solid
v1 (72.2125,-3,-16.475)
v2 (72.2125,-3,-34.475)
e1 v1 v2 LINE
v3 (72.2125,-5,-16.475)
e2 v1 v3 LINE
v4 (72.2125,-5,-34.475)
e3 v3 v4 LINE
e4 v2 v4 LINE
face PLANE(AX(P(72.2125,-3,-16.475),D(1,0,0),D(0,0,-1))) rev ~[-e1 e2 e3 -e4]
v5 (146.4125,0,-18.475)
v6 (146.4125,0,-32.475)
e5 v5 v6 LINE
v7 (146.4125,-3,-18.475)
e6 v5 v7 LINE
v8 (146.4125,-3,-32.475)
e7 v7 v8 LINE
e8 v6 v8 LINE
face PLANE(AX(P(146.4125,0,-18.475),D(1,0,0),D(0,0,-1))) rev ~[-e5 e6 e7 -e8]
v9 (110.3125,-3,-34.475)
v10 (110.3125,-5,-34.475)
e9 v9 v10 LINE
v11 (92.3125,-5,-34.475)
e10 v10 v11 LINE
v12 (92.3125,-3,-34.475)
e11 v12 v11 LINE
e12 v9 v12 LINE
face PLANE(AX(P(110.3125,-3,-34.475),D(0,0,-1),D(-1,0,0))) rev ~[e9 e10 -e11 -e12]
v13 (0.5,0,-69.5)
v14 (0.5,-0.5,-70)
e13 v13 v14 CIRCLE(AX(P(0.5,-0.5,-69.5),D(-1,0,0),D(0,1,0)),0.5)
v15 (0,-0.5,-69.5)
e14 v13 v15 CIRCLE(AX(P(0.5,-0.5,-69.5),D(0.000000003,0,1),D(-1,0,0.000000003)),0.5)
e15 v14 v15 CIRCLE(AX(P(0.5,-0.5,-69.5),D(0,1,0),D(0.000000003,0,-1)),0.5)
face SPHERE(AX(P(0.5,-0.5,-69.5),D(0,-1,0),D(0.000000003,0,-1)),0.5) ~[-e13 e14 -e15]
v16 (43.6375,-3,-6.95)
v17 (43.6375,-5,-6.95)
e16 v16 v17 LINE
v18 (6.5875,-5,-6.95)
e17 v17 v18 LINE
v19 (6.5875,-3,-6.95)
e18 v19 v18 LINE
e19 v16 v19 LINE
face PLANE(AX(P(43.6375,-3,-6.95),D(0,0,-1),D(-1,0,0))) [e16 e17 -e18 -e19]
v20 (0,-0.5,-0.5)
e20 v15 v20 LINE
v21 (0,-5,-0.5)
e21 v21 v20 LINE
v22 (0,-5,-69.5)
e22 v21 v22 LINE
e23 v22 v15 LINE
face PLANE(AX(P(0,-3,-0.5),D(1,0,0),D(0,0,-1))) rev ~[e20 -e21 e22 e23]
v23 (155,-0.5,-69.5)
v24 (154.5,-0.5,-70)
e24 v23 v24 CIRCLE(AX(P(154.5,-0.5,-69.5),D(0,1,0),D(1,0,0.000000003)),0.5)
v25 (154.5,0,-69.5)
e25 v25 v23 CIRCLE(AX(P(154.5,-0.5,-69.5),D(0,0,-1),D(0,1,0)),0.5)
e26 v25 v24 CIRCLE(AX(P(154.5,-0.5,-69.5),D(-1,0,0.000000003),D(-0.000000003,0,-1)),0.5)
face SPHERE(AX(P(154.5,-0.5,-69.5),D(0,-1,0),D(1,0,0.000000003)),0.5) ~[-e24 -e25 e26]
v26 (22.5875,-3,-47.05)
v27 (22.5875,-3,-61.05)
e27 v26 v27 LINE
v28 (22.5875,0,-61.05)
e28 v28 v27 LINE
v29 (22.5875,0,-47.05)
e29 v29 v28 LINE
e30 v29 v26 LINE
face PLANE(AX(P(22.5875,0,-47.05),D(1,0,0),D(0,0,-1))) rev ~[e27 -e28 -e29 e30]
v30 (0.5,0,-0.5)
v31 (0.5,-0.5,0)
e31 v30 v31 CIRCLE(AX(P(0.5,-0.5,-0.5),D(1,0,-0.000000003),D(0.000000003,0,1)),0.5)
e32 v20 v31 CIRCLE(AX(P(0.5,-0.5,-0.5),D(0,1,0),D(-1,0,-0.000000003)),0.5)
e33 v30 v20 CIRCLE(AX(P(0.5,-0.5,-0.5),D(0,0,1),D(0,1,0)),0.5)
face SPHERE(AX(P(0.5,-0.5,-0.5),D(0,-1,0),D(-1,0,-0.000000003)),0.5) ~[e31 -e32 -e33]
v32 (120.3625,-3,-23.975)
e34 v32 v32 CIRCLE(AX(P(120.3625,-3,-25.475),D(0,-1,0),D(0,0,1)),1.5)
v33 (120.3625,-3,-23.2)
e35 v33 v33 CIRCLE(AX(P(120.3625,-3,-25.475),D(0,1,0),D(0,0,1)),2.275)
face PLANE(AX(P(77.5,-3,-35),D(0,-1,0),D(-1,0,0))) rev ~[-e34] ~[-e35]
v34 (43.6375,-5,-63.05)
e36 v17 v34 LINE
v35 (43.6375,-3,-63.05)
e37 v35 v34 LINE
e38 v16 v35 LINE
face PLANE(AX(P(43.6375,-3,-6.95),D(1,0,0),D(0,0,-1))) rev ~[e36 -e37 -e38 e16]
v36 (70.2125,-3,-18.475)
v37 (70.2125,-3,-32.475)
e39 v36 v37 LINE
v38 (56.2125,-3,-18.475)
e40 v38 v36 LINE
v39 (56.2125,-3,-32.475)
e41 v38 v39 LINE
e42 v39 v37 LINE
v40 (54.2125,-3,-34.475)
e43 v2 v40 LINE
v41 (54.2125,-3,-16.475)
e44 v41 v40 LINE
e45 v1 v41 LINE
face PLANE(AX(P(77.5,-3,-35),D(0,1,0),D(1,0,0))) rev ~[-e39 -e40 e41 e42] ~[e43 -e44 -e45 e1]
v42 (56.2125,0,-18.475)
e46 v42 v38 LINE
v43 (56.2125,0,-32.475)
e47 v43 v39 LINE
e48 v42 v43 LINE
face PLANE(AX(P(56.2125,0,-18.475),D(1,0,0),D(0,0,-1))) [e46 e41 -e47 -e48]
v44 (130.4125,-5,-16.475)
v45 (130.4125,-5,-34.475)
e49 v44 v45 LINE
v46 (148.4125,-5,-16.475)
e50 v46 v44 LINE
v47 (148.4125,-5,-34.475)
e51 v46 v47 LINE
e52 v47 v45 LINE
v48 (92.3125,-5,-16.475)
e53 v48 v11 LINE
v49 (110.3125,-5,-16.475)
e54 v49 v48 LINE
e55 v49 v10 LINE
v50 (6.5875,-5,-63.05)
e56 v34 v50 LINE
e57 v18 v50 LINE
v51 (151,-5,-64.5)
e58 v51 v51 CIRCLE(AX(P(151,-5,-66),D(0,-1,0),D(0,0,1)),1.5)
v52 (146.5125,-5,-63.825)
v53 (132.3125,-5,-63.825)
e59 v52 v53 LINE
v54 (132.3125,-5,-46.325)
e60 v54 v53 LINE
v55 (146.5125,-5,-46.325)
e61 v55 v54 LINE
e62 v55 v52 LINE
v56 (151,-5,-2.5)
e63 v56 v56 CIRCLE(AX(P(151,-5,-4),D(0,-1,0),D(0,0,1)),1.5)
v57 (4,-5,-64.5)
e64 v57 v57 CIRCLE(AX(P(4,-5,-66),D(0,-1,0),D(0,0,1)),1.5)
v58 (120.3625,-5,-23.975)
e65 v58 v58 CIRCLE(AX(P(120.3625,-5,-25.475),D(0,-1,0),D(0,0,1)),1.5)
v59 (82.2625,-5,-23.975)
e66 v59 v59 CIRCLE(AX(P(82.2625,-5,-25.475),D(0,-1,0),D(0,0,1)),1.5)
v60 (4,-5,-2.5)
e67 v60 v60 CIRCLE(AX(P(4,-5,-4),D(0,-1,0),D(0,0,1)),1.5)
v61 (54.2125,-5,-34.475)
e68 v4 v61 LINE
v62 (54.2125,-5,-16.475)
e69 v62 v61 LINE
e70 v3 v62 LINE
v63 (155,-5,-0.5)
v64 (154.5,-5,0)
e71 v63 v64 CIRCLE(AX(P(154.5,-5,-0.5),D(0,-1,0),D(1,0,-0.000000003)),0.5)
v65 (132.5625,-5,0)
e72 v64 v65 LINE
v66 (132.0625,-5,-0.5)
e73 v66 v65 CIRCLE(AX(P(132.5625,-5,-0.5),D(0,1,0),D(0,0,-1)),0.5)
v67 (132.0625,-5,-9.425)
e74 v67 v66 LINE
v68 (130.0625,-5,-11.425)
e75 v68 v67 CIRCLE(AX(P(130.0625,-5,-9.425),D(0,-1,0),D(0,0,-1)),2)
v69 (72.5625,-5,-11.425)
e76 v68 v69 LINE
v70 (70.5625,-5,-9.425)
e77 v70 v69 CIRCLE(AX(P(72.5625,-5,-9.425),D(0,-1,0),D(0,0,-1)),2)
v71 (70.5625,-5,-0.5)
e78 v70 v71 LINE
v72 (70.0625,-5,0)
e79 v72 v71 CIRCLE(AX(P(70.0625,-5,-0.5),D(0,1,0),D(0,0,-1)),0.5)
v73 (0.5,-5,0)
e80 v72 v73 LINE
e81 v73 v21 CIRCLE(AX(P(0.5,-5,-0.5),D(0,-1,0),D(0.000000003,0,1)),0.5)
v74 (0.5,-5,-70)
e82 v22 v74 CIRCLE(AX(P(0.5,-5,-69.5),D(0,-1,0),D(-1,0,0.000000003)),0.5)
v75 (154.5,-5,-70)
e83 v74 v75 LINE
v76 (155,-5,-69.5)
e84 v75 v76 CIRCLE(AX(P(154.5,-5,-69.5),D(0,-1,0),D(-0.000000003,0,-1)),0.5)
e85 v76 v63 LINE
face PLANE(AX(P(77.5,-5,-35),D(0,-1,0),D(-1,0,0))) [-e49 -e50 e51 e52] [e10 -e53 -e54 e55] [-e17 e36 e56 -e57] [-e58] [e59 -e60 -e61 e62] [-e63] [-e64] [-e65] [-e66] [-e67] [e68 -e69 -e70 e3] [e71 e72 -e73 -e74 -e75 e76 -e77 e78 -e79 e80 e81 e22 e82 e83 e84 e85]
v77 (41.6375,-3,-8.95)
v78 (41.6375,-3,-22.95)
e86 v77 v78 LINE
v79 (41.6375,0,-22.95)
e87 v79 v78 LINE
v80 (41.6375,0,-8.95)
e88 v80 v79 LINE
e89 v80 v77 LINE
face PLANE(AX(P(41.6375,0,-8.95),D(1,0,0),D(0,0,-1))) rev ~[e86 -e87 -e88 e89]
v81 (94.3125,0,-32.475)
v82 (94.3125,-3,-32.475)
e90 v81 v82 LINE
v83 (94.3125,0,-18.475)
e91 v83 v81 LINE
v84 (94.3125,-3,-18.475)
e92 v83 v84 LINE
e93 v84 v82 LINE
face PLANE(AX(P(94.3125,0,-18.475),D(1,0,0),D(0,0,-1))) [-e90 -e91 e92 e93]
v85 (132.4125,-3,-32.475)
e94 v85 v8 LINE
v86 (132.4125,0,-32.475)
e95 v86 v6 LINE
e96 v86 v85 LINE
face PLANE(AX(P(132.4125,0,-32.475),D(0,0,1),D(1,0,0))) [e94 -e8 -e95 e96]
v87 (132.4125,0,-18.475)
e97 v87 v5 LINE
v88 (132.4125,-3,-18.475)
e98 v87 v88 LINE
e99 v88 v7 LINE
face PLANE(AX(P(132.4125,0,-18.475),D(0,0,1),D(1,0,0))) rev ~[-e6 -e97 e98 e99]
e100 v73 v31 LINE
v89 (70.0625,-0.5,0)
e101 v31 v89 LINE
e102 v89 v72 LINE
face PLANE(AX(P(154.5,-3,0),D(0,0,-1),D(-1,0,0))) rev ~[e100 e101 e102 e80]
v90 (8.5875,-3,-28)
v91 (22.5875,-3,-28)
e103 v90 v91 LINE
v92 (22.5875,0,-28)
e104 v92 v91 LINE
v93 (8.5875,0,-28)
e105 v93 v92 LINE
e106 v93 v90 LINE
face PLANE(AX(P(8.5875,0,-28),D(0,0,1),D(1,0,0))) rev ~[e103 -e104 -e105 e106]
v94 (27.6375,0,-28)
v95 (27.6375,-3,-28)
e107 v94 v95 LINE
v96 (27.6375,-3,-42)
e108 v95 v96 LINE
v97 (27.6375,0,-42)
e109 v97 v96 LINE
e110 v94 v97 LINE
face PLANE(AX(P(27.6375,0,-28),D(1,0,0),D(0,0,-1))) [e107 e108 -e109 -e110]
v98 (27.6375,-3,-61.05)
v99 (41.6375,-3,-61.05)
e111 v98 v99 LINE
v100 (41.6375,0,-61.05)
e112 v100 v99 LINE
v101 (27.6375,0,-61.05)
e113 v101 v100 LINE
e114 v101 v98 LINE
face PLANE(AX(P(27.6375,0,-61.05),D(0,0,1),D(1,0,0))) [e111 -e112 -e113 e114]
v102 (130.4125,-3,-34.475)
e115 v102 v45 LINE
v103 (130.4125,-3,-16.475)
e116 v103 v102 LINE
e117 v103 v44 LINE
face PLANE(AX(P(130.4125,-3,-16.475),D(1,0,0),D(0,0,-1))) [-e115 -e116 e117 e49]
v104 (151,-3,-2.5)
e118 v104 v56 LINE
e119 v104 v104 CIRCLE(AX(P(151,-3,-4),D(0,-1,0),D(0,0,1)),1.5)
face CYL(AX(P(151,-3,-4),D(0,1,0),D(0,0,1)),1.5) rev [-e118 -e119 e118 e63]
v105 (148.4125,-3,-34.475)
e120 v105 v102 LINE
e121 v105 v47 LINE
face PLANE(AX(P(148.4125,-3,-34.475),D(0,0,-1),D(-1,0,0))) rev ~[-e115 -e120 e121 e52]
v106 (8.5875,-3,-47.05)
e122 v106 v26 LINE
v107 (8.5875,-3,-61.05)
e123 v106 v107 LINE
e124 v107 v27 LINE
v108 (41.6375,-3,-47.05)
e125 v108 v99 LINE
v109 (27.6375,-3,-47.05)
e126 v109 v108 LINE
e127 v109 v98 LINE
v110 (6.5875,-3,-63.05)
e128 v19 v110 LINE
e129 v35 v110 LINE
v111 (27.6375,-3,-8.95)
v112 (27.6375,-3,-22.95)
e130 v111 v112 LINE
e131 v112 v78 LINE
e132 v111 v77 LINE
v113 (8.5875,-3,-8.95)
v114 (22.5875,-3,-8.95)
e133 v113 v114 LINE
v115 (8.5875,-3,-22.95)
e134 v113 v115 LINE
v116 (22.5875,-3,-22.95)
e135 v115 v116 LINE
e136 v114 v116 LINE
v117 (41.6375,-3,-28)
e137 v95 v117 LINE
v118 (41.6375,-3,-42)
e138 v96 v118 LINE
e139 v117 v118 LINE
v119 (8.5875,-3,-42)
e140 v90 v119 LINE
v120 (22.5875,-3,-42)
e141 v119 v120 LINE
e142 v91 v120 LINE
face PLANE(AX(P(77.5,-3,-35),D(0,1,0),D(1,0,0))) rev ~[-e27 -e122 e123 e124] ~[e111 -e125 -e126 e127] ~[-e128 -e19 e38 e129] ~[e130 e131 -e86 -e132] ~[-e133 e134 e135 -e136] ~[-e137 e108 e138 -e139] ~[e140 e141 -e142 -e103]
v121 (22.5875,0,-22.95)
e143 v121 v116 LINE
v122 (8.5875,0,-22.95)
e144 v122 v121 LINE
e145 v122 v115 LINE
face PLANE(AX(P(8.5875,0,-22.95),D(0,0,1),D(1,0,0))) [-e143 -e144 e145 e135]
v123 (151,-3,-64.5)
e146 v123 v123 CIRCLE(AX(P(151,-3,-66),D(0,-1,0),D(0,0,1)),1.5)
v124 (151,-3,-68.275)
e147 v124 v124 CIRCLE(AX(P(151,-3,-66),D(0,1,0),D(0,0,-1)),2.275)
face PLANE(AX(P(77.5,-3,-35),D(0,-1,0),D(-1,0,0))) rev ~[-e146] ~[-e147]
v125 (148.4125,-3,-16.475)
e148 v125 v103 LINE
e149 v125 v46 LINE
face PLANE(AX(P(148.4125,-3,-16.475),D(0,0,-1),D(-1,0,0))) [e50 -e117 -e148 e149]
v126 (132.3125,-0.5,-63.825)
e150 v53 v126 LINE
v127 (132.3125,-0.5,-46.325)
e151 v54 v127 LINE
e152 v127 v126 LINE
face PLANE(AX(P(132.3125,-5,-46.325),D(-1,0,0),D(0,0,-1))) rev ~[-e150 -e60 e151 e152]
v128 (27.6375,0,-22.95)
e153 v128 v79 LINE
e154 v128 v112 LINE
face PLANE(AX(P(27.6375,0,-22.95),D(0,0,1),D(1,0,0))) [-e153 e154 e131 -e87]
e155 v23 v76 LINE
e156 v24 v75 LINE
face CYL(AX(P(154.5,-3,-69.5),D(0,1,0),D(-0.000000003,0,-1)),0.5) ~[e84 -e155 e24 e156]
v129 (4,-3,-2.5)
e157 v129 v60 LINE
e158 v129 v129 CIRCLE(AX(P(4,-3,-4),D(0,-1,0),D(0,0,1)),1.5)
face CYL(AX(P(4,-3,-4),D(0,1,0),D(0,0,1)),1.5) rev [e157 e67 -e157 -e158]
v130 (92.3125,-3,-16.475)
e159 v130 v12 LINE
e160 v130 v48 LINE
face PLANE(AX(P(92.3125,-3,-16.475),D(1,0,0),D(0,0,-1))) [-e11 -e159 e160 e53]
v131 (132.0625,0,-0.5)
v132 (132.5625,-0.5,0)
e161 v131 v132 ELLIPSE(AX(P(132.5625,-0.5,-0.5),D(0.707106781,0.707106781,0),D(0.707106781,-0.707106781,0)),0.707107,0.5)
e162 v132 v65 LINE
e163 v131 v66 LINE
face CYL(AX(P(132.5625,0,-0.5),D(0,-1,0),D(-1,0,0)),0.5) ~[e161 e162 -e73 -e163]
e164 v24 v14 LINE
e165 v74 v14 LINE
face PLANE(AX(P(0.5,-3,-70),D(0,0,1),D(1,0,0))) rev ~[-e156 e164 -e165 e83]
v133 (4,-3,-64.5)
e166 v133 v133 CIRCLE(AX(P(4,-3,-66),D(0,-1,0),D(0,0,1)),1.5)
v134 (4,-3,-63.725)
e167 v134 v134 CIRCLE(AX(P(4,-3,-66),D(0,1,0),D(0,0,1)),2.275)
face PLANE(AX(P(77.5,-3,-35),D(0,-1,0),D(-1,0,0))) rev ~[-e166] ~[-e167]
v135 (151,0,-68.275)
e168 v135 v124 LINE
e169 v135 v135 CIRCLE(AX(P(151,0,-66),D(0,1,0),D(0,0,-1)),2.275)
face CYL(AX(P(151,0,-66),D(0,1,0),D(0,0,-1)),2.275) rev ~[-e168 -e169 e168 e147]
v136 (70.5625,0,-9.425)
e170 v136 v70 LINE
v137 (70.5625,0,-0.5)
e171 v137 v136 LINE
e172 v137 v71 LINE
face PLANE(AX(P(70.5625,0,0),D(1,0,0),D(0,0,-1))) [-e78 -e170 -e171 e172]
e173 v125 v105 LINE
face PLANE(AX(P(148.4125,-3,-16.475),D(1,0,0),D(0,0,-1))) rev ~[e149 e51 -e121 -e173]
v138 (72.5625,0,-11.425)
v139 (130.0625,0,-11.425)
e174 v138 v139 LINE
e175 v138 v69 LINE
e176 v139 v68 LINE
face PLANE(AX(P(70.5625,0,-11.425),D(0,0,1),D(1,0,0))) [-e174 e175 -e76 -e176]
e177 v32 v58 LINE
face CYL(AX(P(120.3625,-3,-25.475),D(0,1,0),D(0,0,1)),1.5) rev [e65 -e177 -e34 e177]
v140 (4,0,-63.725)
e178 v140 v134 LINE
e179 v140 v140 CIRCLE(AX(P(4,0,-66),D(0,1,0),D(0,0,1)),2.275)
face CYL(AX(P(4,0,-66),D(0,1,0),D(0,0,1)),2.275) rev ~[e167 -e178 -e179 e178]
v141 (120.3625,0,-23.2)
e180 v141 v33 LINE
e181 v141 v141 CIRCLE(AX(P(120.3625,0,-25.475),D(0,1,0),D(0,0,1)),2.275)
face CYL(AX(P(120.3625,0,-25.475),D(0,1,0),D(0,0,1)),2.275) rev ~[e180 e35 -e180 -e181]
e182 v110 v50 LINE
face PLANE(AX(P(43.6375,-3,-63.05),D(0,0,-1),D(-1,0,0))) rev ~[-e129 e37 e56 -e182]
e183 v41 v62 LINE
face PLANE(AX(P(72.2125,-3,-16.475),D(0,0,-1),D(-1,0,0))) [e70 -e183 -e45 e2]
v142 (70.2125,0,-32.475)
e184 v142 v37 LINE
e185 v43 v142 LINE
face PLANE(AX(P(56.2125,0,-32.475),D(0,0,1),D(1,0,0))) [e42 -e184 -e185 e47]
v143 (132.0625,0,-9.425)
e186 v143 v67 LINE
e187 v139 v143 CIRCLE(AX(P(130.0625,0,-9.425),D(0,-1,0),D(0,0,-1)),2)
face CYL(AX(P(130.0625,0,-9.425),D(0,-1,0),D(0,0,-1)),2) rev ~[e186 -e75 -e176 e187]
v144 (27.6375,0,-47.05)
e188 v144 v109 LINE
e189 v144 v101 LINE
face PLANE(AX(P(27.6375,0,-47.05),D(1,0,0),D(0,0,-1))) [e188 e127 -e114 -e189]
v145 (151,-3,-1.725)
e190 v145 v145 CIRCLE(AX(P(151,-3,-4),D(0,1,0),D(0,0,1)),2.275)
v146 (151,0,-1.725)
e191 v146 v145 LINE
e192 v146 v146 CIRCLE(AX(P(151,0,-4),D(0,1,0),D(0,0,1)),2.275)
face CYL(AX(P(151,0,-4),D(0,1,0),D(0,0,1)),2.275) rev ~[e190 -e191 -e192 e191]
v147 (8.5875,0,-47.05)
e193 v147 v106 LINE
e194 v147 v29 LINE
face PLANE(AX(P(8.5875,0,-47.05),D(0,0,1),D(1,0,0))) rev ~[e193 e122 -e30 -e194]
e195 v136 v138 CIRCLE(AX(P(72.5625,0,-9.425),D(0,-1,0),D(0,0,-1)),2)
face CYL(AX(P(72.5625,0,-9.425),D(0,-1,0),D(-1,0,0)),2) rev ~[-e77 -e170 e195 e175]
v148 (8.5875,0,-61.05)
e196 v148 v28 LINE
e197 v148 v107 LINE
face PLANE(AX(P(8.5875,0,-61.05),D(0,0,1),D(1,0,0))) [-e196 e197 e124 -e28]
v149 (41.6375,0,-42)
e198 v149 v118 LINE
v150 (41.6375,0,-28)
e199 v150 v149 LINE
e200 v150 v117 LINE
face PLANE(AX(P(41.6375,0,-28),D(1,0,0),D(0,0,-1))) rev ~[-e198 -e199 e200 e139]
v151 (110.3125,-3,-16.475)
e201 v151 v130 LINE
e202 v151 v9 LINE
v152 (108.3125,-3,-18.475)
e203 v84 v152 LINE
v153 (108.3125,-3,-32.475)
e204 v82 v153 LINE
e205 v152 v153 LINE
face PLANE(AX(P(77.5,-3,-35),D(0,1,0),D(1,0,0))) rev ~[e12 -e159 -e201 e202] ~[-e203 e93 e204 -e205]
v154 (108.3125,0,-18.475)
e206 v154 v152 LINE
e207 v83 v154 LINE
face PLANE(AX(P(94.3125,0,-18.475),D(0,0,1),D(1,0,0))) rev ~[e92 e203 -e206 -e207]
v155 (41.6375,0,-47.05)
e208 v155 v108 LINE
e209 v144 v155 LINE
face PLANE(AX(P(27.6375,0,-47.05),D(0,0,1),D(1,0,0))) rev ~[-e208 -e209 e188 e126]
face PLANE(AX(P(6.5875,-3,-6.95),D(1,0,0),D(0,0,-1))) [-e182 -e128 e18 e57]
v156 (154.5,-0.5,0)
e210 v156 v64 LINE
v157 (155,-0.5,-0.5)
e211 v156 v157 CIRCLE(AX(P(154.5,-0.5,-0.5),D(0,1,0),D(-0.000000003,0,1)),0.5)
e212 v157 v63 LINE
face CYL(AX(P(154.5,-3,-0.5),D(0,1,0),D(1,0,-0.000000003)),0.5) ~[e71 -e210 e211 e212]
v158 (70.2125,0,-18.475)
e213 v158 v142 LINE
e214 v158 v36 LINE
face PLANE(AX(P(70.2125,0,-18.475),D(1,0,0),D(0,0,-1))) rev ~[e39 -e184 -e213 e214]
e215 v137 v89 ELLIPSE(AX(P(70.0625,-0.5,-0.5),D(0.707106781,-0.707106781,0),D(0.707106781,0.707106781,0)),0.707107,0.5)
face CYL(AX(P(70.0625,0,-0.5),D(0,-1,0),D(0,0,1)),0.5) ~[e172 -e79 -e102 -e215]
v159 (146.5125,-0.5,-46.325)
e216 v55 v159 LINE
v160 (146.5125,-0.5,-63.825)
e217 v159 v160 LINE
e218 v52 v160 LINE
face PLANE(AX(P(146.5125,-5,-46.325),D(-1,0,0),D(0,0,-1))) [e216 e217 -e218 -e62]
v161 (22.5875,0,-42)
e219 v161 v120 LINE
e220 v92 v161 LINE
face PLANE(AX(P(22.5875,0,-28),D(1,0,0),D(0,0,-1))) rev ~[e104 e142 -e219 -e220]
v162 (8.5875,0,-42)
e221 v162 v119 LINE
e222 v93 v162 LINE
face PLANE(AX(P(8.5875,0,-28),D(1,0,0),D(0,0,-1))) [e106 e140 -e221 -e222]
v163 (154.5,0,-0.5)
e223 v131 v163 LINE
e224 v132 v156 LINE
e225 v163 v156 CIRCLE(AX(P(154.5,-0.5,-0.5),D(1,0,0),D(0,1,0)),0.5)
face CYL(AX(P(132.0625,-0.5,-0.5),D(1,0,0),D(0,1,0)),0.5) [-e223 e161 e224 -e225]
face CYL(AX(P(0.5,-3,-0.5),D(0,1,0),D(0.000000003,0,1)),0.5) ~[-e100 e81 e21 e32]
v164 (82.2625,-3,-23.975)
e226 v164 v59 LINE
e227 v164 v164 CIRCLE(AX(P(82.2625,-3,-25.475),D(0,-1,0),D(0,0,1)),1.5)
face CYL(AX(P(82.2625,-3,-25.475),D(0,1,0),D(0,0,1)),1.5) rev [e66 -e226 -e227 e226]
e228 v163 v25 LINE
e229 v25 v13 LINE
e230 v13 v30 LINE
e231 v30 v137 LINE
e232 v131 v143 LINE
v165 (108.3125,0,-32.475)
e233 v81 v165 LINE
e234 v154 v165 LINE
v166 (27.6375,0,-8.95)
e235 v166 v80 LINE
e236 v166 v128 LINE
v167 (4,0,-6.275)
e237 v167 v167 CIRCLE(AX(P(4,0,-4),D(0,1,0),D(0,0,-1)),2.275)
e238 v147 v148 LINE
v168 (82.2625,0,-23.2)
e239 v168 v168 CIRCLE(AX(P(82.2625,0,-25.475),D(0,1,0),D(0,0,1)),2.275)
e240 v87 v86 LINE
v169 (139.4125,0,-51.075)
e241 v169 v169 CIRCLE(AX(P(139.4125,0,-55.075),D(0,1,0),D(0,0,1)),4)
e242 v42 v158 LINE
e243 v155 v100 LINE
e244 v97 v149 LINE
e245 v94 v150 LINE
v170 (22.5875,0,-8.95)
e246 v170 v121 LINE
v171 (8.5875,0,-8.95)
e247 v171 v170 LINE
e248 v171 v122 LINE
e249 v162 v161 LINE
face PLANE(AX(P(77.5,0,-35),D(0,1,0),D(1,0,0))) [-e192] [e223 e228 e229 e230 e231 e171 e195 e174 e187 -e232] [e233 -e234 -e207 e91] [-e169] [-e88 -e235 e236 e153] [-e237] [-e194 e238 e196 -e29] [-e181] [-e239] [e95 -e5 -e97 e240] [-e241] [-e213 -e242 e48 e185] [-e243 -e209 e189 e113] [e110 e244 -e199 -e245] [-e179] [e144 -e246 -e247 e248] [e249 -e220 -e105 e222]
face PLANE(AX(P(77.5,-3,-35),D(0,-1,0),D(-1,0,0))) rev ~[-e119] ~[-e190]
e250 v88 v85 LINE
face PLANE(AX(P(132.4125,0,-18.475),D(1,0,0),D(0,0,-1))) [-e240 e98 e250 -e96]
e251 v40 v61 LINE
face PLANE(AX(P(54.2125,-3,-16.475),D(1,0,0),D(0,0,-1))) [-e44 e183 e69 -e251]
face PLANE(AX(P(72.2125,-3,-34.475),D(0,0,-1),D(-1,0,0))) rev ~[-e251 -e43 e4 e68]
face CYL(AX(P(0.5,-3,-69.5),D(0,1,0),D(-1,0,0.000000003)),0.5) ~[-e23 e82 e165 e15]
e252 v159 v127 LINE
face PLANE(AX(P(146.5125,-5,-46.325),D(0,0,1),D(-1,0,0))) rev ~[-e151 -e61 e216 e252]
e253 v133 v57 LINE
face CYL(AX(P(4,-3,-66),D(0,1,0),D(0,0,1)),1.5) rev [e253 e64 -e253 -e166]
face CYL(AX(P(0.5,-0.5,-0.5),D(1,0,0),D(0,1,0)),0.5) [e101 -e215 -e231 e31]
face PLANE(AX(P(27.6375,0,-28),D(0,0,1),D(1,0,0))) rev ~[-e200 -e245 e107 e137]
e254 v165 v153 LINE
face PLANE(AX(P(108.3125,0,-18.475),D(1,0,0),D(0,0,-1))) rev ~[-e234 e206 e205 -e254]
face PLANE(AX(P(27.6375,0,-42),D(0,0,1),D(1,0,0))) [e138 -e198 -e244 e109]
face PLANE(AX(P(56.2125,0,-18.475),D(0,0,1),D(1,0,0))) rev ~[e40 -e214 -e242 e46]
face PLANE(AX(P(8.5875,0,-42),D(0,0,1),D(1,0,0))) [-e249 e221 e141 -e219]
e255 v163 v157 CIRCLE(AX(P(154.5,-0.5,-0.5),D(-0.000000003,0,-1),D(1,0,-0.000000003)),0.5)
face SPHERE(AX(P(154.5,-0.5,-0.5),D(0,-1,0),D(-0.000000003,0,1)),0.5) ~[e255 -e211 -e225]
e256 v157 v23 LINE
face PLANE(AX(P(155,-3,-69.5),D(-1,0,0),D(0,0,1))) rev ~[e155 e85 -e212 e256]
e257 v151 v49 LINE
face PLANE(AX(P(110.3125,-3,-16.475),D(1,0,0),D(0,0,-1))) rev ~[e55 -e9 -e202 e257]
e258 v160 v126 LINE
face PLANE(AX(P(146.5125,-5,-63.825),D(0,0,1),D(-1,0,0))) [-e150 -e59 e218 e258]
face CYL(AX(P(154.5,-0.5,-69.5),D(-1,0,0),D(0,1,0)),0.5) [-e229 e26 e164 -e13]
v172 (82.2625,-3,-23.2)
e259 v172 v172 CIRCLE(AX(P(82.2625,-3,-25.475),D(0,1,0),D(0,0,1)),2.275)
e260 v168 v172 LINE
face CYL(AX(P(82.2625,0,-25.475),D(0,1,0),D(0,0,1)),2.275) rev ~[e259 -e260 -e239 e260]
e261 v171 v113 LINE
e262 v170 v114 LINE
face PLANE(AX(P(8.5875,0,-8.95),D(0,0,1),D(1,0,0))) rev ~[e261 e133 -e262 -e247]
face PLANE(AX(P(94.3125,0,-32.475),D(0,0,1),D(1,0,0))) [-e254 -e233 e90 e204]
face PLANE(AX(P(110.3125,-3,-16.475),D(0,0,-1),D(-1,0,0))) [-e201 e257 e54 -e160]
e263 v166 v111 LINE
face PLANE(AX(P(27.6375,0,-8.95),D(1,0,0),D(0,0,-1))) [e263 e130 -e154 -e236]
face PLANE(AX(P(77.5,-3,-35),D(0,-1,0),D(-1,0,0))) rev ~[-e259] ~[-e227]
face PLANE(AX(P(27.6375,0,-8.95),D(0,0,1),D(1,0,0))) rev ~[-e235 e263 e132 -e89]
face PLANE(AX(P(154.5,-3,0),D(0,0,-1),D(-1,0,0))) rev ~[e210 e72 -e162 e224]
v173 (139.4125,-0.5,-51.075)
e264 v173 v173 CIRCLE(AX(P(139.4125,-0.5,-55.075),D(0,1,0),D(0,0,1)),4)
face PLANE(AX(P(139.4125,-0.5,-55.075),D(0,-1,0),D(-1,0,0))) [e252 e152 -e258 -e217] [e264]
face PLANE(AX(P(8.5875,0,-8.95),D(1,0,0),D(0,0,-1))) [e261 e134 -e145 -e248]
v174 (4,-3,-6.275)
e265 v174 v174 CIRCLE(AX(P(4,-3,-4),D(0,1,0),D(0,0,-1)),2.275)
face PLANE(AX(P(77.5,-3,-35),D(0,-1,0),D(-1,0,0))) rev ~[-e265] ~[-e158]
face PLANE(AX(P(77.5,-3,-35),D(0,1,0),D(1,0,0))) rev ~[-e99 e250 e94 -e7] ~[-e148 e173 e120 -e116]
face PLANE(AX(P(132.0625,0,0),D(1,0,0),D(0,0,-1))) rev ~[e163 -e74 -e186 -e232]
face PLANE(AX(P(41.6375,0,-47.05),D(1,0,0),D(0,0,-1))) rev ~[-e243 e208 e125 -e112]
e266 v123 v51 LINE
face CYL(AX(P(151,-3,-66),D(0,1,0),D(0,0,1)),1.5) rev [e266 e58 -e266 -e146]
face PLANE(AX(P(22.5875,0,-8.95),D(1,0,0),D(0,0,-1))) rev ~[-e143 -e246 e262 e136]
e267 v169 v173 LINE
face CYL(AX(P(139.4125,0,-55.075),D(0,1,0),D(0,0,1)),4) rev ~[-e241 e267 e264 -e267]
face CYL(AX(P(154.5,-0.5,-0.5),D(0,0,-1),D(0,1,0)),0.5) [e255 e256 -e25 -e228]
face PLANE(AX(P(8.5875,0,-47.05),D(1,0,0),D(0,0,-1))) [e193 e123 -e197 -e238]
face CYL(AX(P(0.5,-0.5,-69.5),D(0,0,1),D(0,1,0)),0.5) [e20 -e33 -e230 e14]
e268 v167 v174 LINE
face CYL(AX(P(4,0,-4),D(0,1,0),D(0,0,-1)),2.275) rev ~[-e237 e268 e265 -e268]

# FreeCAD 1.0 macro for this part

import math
import FreeCAD as App
import Part
import Sketcher
from FreeCAD import Vector


def edges_at(feature, points):
    """Names of the edges that pass closest to the given points."""
    edges = feature.Shape.Edges
    near = lambda p: min(range(len(edges)), key=lambda i: edges[i].distToShape(Part.Vertex(*p))[0])
    return sorted({f"Edge{near(p) + 1}" for p in points})


def add_polygon(sketch, points):
    """Adds a closed chain of lines whose ends are joined by coincident constraints."""
    first, n = sketch.GeometryCount, len(points)
    for a, b in zip(points, points[1:] + points[:1]):
        sketch.addGeometry(Part.LineSegment(App.Vector(*a, 0), App.Vector(*b, 0)), False)
    for i in range(n):
        sketch.addConstraint(Sketcher.Constraint("Coincident", first + i, 2, first + (i + 1) % n, 1))

doc = App.newDocument("Part")
params = doc.addObject("Spreadsheet::Sheet", "Params")
for row, (alias, value) in enumerate([
    ("sketch1_diameter", "8 mm"),
    ("sketch1_radius", "0.5 mm"),
    ("sketch1_diameter2", "4.55 mm"),
    ("sketch1_width", "154 mm"),
    ("sketch1_width2", "14 mm"),
    ("pad1_length", "3 mm"),
    ("sketch2_diameter", "3 mm"),
    ("sketch2_diameter2", "8 mm"),
    ("sketch2_radius", "0.5 mm"),
    ("sketch2_width", "154 mm"),
    ("sketch2_width2", "18 mm"),
    ("pad2_length", "2 mm"),
    ("sketch3_width", "14.2 mm"),
    ("sketch3_height", "17.5 mm"),
    ("pocket1_length", "4.5 mm"),
    ("sketch4_width", "61.5 mm"),
    ("fillet_radius", "0.5 mm"),
    ("fillet2_radius", "2 mm"),
], start=1):
    params.set(f"A{row}", alias)
    params.set(f"B{row}", "=" + value)
    params.setAlias(f"B{row}", alias)

body = doc.addObject("PartDesign::Body", "Body")

sketch1 = body.newObject("Sketcher::SketchObject", "Sketch")
sketch1.AttachmentSupport = (doc.getObject("XZ_Plane"), [""])
sketch1.MapMode = "FlatFace"
sketch1.addGeometry(Part.LineSegment(Vector(0.5, 0, 0), Vector(154.5, 0, 0)), False)
sketch1.addGeometry(Part.ArcOfCircle(Part.Circle(Vector(154.5, -0.5, 0), Vector(0, 0, 1), 0.5), math.radians(0), math.radians(90)), False)
sketch1.addGeometry(Part.LineSegment(Vector(155, -0.5, 0), Vector(155, -69.5, 0)), False)
sketch1.addGeometry(Part.ArcOfCircle(Part.Circle(Vector(154.5, -69.5, 0), Vector(0, 0, 1), 0.5), math.radians(-90), math.radians(0)), False)
sketch1.addGeometry(Part.LineSegment(Vector(154.5, -70, 0), Vector(0.5, -70, 0)), False)
sketch1.addGeometry(Part.ArcOfCircle(Part.Circle(Vector(0.5, -69.5, 0), Vector(0, 0, 1), 0.5), math.radians(180), math.radians(270)), False)
sketch1.addGeometry(Part.LineSegment(Vector(0, -69.5, 0), Vector(0, -0.5, 0)), False)
sketch1.addGeometry(Part.ArcOfCircle(Part.Circle(Vector(0.5, -0.5, 0), Vector(0, 0, 1), 0.5), math.radians(90), math.radians(180)), False)
sketch1.addGeometry(Part.Circle(Vector(4, -4, 0), Vector(0, 0, 1), 2.275), False)
add_polygon(sketch1, [(22.5875, -8.95), (8.5875, -8.95), (8.5875, -22.95), (22.5875, -22.95)])
add_polygon(sketch1, [(41.6375, -8.95), (27.6375, -8.95), (27.6375, -22.95), (41.6375, -22.95)])
add_polygon(sketch1, [(22.5875, -28), (8.5875, -28), (8.5875, -42), (22.5875, -42)])
add_polygon(sketch1, [(41.6375, -28), (27.6375, -28), (27.6375, -42), (41.6375, -42)])
add_polygon(sketch1, [(70.2125, -18.475), (56.2125, -18.475), (56.2125, -32.475), (70.2125, -32.475)])
sketch1.addGeometry(Part.Circle(Vector(151, -4, 0), Vector(0, 0, 1), 2.275), False)
sketch1.addGeometry(Part.Circle(Vector(82.2625, -25.475, 0), Vector(0, 0, 1), 2.275), False)
add_polygon(sketch1, [(108.3125, -18.475), (94.3125, -18.475), (94.3125, -32.475), (108.3125, -32.475)])
sketch1.addGeometry(Part.Circle(Vector(120.3625, -25.475, 0), Vector(0, 0, 1), 2.275), False)
add_polygon(sketch1, [(146.4125, -18.475), (132.4125, -18.475), (132.4125, -32.475), (146.4125, -32.475)])
add_polygon(sketch1, [(22.5875, -47.05), (8.5875, -47.05), (8.5875, -61.05), (22.5875, -61.05)])
add_polygon(sketch1, [(41.6375, -47.05), (27.6375, -47.05), (27.6375, -61.05), (41.6375, -61.05)])
sketch1.addGeometry(Part.Circle(Vector(4, -66, 0), Vector(0, 0, 1), 2.275), False)
sketch1.addGeometry(Part.Circle(Vector(139.4125, -55.075, 0), Vector(0, 0, 1), 4), False)
sketch1.addGeometry(Part.Circle(Vector(151, -66, 0), Vector(0, 0, 1), 2.275), False)
sketch1.addConstraint(Sketcher.Constraint("Tangent", 0, 2, 1, 2))
sketch1.addConstraint(Sketcher.Constraint("Tangent", 1, 1, 2, 1))
sketch1.addConstraint(Sketcher.Constraint("Tangent", 2, 2, 3, 2))
sketch1.addConstraint(Sketcher.Constraint("Tangent", 3, 1, 4, 1))
sketch1.addConstraint(Sketcher.Constraint("Tangent", 4, 2, 5, 2))
sketch1.addConstraint(Sketcher.Constraint("Tangent", 5, 1, 6, 1))
sketch1.addConstraint(Sketcher.Constraint("Tangent", 6, 2, 7, 2))
sketch1.addConstraint(Sketcher.Constraint("Tangent", 7, 1, 0, 1))
sketch1.addConstraint(Sketcher.Constraint("Horizontal", 0))
sketch1.addConstraint(Sketcher.Constraint("Vertical", 2))
sketch1.addConstraint(Sketcher.Constraint("Horizontal", 4))
sketch1.addConstraint(Sketcher.Constraint("Vertical", 6))
sketch1.addConstraint(Sketcher.Constraint("Horizontal", 9))
sketch1.addConstraint(Sketcher.Constraint("Vertical", 10))
sketch1.addConstraint(Sketcher.Constraint("Horizontal", 11))
sketch1.addConstraint(Sketcher.Constraint("Vertical", 12))
sketch1.addConstraint(Sketcher.Constraint("Horizontal", 13))
sketch1.addConstraint(Sketcher.Constraint("Vertical", 14))
sketch1.addConstraint(Sketcher.Constraint("Horizontal", 15))
sketch1.addConstraint(Sketcher.Constraint("Vertical", 16))
sketch1.addConstraint(Sketcher.Constraint("Horizontal", 17))
sketch1.addConstraint(Sketcher.Constraint("Vertical", 18))
sketch1.addConstraint(Sketcher.Constraint("Horizontal", 19))
sketch1.addConstraint(Sketcher.Constraint("Vertical", 20))
sketch1.addConstraint(Sketcher.Constraint("Horizontal", 21))
sketch1.addConstraint(Sketcher.Constraint("Vertical", 22))
sketch1.addConstraint(Sketcher.Constraint("Horizontal", 23))
sketch1.addConstraint(Sketcher.Constraint("Vertical", 24))
sketch1.addConstraint(Sketcher.Constraint("Horizontal", 25))
sketch1.addConstraint(Sketcher.Constraint("Vertical", 26))
sketch1.addConstraint(Sketcher.Constraint("Horizontal", 27))
sketch1.addConstraint(Sketcher.Constraint("Vertical", 28))
sketch1.addConstraint(Sketcher.Constraint("Horizontal", 31))
sketch1.addConstraint(Sketcher.Constraint("Vertical", 32))
sketch1.addConstraint(Sketcher.Constraint("Horizontal", 33))
sketch1.addConstraint(Sketcher.Constraint("Vertical", 34))
sketch1.addConstraint(Sketcher.Constraint("Horizontal", 36))
sketch1.addConstraint(Sketcher.Constraint("Vertical", 37))
sketch1.addConstraint(Sketcher.Constraint("Horizontal", 38))
sketch1.addConstraint(Sketcher.Constraint("Vertical", 39))
sketch1.addConstraint(Sketcher.Constraint("Horizontal", 40))
sketch1.addConstraint(Sketcher.Constraint("Vertical", 41))
sketch1.addConstraint(Sketcher.Constraint("Horizontal", 42))
sketch1.addConstraint(Sketcher.Constraint("Vertical", 43))
sketch1.addConstraint(Sketcher.Constraint("Horizontal", 44))
sketch1.addConstraint(Sketcher.Constraint("Vertical", 45))
sketch1.addConstraint(Sketcher.Constraint("Horizontal", 46))
sketch1.addConstraint(Sketcher.Constraint("Vertical", 47))
sketch1.addConstraint(Sketcher.Constraint("Equal", 1, 3))
sketch1.addConstraint(Sketcher.Constraint("Equal", 3, 5))
sketch1.addConstraint(Sketcher.Constraint("Equal", 5, 7))
sketch1.addConstraint(Sketcher.Constraint("Equal", 8, 29))
sketch1.addConstraint(Sketcher.Constraint("Equal", 29, 30))
sketch1.addConstraint(Sketcher.Constraint("Equal", 30, 35))
sketch1.addConstraint(Sketcher.Constraint("Equal", 35, 48))
sketch1.addConstraint(Sketcher.Constraint("Equal", 48, 50))
sketch1.addConstraint(Sketcher.Constraint("PointOnObject", 0, 2, -1))
sketch1.addConstraint(Sketcher.Constraint("PointOnObject", 5, 1, -2))
sketch1.addConstraint(Sketcher.Constraint("Horizontal", 8, 3, 29, 3))
sketch1.addConstraint(Sketcher.Constraint("Horizontal", 30, 3, 35, 3))
sketch1.addConstraint(Sketcher.Constraint("Horizontal", 48, 3, 50, 3))
sketch1.addConstraint(Sketcher.Constraint("Horizontal", 12, 2, 13, 2))
sketch1.addConstraint(Sketcher.Constraint("Horizontal", 11, 2, 14, 2))
sketch1.addConstraint(Sketcher.Constraint("Horizontal", 20, 2, 21, 2))
sketch1.addConstraint(Sketcher.Constraint("Horizontal", 19, 2, 22, 2))
sketch1.addConstraint(Sketcher.Constraint("Horizontal", 28, 2, 31, 2))
sketch1.addConstraint(Sketcher.Constraint("Horizontal", 27, 2, 32, 2))
sketch1.addConstraint(Sketcher.Constraint("Horizontal", 34, 2, 36, 2))
sketch1.addConstraint(Sketcher.Constraint("Horizontal", 33, 2, 37, 2))
sketch1.addConstraint(Sketcher.Constraint("Horizontal", 43, 2, 44, 2))
sketch1.addConstraint(Sketcher.Constraint("Horizontal", 42, 2, 45, 2))
sketch1.addConstraint(Sketcher.Constraint("Vertical", 8, 3, 48, 3))
sketch1.addConstraint(Sketcher.Constraint("Vertical", 29, 3, 50, 3))
sketch1.addConstraint(Sketcher.Constraint("Vertical", 10, 2, 17, 2))
sketch1.addConstraint(Sketcher.Constraint("Vertical", 12, 2, 19, 2))
sketch1.addConstraint(Sketcher.Constraint("Vertical", 14, 2, 21, 2))
sketch1.addConstraint(Sketcher.Constraint("Vertical", 16, 2, 23, 2))
sketch1.addConstraint(Sketcher.Constraint("Vertical", 18, 2, 40, 2))
sketch1.addConstraint(Sketcher.Constraint("Vertical", 20, 2, 42, 2))
sketch1.addConstraint(Sketcher.Constraint("Vertical", 22, 2, 44, 2))
sketch1.addConstraint(Sketcher.Constraint("Vertical", 24, 2, 46, 2))
sketch1.addConstraint(Sketcher.Constraint("Equal", 11, 13))
sketch1.addConstraint(Sketcher.Constraint("Equal", 23, 25))
sketch1.addConstraint(Sketcher.Constraint("Equal", 27, 31))
sketch1.addConstraint(Sketcher.Constraint("Equal", 33, 36))
sketch1.addConstraint(Sketcher.Constraint("Equal", 46, 10))
sketch1.addConstraint(Sketcher.Constraint("Equal", 16, 18))
sketch1.addConstraint(Sketcher.Constraint("Equal", 24, 26))
sketch1.addConstraint(Sketcher.Constraint("Equal", 39, 41))
sketch1.addConstraint(Sketcher.Constraint("Diameter", 49, 8.0))
sketch1.addConstraint(Sketcher.Constraint("Radius", 1, 0.5))
sketch1.addConstraint(Sketcher.Constraint("Diameter", 8, 4.55))
sketch1.addConstraint(Sketcher.Constraint("DistanceX", 0, 1, 0, 2, 154.0))
sketch1.addConstraint(Sketcher.Constraint("DistanceX", 9, 2, 9, 1, 14.0))
sketch1.addConstraint(Sketcher.Constraint("DistanceY", 2, 2, 2, 1, 69.0))
sketch1.addConstraint(Sketcher.Constraint("DistanceX", -1, 1, 8, 3, 4.0))
sketch1.addConstraint(Sketcher.Constraint("DistanceY", 8, 3, -1, 1, 4.0))
sketch1.addConstraint(Sketcher.Constraint("DistanceX", -1, 1, 29, 3, 151.0))
sketch1.addConstraint(Sketcher.Constraint("DistanceY", 48, 3, -1, 1, 66.0))
sketch1.addConstraint(Sketcher.Constraint("DistanceY", 17, 2, -1, 1, 28.0))
sketch1.addConstraint(Sketcher.Constraint("DistanceY", 30, 3, 25, 2, 7.0))
sketch1.addConstraint(Sketcher.Constraint("DistanceX", 37, 2, 49, 3, 7.0))
sketch1.addConstraint(Sketcher.Constraint("DistanceX", 30, 3, 35, 3, 38.1))
sketch1.addConstraint(Sketcher.Constraint("DistanceY", 49, 3, 35, 3, 29.6))
sketch1.addConstraint(Sketcher.Constraint("DistanceX", 28, 2, 31, 2, 24.1))
sketch1.addConstraint(Sketcher.Constraint("DistanceX", 34, 2, 36, 2, 24.1))
sketch1.addConstraint(Sketcher.Constraint("DistanceY", 9, 2, -1, 1, 8.95))
sketch1.addConstraint(Sketcher.Constraint("DistanceY", 40, 2, -1, 1, 47.05))
sketch1.addConstraint(Sketcher.Constraint("DistanceX", 35, 3, 49, 3, 19.05))
sketch1.addConstraint(Sketcher.Constraint("DistanceX", 12, 2, 13, 2, 5.05))
sketch1.addConstraint(Sketcher.Constraint("DistanceY", 30, 3, -1, 1, 25.475))
sketch1.addConstraint(Sketcher.Constraint("DistanceX", 15, 2, 25, 2, 14.575))
sketch1.addConstraint(Sketcher.Constraint("DistanceX", -1, 1, 30, 3, 82.2625))
sketch1.setExpression("Constraints[125]", "Params.sketch1_diameter")
sketch1.setExpression("Constraints[126]", "Params.sketch1_radius")
sketch1.setExpression("Constraints[127]", "Params.sketch1_diameter2")
sketch1.setExpression("Constraints[128]", "Params.sketch1_width")
sketch1.setExpression("Constraints[129]", "Params.sketch1_width2")
pad1 = body.newObject("PartDesign::Pad", "Pad")
pad1.Profile = sketch1
pad1.setExpression("Length", "Params.pad1_length")

sketch2 = body.newObject("Sketcher::SketchObject", "Sketch001")
sketch2.AttachmentSupport = (doc.getObject("XZ_Plane"), [""])
sketch2.MapMode = "FlatFace"
sketch2.AttachmentOffset = App.Placement(Vector(0, 0, 3), App.Rotation())
sketch2.addGeometry(Part.LineSegment(Vector(0.5, -70, 0), Vector(154.5, -70, 0)), False)
sketch2.addGeometry(Part.ArcOfCircle(Part.Circle(Vector(154.5, -69.5, 0), Vector(0, 0, 1), 0.5), math.radians(-90), math.radians(0)), False)
sketch2.addGeometry(Part.LineSegment(Vector(155, -69.5, 0), Vector(155, -0.5, 0)), False)
sketch2.addGeometry(Part.ArcOfCircle(Part.Circle(Vector(154.5, -0.5, 0), Vector(0, 0, 1), 0.5), math.radians(0), math.radians(90)), False)
sketch2.addGeometry(Part.LineSegment(Vector(154.5, 0, 0), Vector(0.5, 0, 0)), False)
sketch2.addGeometry(Part.ArcOfCircle(Part.Circle(Vector(0.5, -0.5, 0), Vector(0, 0, 1), 0.5), math.radians(90), math.radians(180)), False)
sketch2.addGeometry(Part.LineSegment(Vector(0, -0.5, 0), Vector(0, -69.5, 0)), False)
sketch2.addGeometry(Part.ArcOfCircle(Part.Circle(Vector(0.5, -69.5, 0), Vector(0, 0, 1), 0.5), math.radians(180), math.radians(270)), False)
sketch2.addGeometry(Part.Circle(Vector(151, -4, 0), Vector(0, 0, 1), 1.5), False)
add_polygon(sketch2, [(130.4125, -16.475), (148.4125, -16.475), (148.4125, -34.475), (130.4125, -34.475)])
sketch2.addGeometry(Part.Circle(Vector(120.3625, -25.475, 0), Vector(0, 0, 1), 1.5), False)
add_polygon(sketch2, [(92.3125, -16.475), (110.3125, -16.475), (110.3125, -34.475), (92.3125, -34.475)])
sketch2.addGeometry(Part.Circle(Vector(82.2625, -25.475, 0), Vector(0, 0, 1), 1.5), False)
sketch2.addGeometry(Part.Circle(Vector(4, -4, 0), Vector(0, 0, 1), 1.5), False)
add_polygon(sketch2, [(54.2125, -16.475), (72.2125, -16.475), (72.2125, -34.475), (54.2125, -34.475)])
sketch2.addGeometry(Part.Circle(Vector(139.4125, -55.075, 0), Vector(0, 0, 1), 4), False)
sketch2.addGeometry(Part.Circle(Vector(151, -66, 0), Vector(0, 0, 1), 1.5), False)
add_polygon(sketch2, [(6.5875, -6.95), (43.6375, -6.95), (43.6375, -63.05), (6.5875, -63.05)])
sketch2.addGeometry(Part.Circle(Vector(4, -66, 0), Vector(0, 0, 1), 1.5), False)
sketch2.addConstraint(Sketcher.Constraint("Tangent", 0, 2, 1, 1))
sketch2.addConstraint(Sketcher.Constraint("Tangent", 1, 2, 2, 1))
sketch2.addConstraint(Sketcher.Constraint("Tangent", 2, 2, 3, 1))
sketch2.addConstraint(Sketcher.Constraint("Tangent", 3, 2, 4, 1))
sketch2.addConstraint(Sketcher.Constraint("Tangent", 4, 2, 5, 1))
sketch2.addConstraint(Sketcher.Constraint("Tangent", 5, 2, 6, 1))
sketch2.addConstraint(Sketcher.Constraint("Tangent", 6, 2, 7, 1))
sketch2.addConstraint(Sketcher.Constraint("Tangent", 7, 2, 0, 1))
sketch2.addConstraint(Sketcher.Constraint("Horizontal", 0))
sketch2.addConstraint(Sketcher.Constraint("Vertical", 2))
sketch2.addConstraint(Sketcher.Constraint("Horizontal", 4))
sketch2.addConstraint(Sketcher.Constraint("Vertical", 6))
sketch2.addConstraint(Sketcher.Constraint("Horizontal", 9))
sketch2.addConstraint(Sketcher.Constraint("Vertical", 10))
sketch2.addConstraint(Sketcher.Constraint("Horizontal", 11))
sketch2.addConstraint(Sketcher.Constraint("Vertical", 12))
sketch2.addConstraint(Sketcher.Constraint("Horizontal", 14))
sketch2.addConstraint(Sketcher.Constraint("Vertical", 15))
sketch2.addConstraint(Sketcher.Constraint("Horizontal", 16))
sketch2.addConstraint(Sketcher.Constraint("Vertical", 17))
sketch2.addConstraint(Sketcher.Constraint("Horizontal", 20))
sketch2.addConstraint(Sketcher.Constraint("Vertical", 21))
sketch2.addConstraint(Sketcher.Constraint("Horizontal", 22))
sketch2.addConstraint(Sketcher.Constraint("Vertical", 23))
sketch2.addConstraint(Sketcher.Constraint("Horizontal", 26))
sketch2.addConstraint(Sketcher.Constraint("Vertical", 27))
sketch2.addConstraint(Sketcher.Constraint("Horizontal", 28))
sketch2.addConstraint(Sketcher.Constraint("Vertical", 29))
sketch2.addConstraint(Sketcher.Constraint("Equal", 1, 3))
sketch2.addConstraint(Sketcher.Constraint("Equal", 3, 5))
sketch2.addConstraint(Sketcher.Constraint("Equal", 5, 7))
sketch2.addConstraint(Sketcher.Constraint("Equal", 8, 13))
sketch2.addConstraint(Sketcher.Constraint("Equal", 13, 18))
sketch2.addConstraint(Sketcher.Constraint("Equal", 18, 19))
sketch2.addConstraint(Sketcher.Constraint("Equal", 19, 25))
sketch2.addConstraint(Sketcher.Constraint("Equal", 25, 30))
sketch2.addConstraint(Sketcher.Constraint("PointOnObject", 3, 2, -1))
sketch2.addConstraint(Sketcher.Constraint("PointOnObject", 5, 2, -2))
sketch2.addConstraint(Sketcher.Constraint("Horizontal", 13, 3, 18, 3))
sketch2.addConstraint(Sketcher.Constraint("Horizontal", 8, 3, 19, 3))
sketch2.addConstraint(Sketcher.Constraint("Horizontal", 25, 3, 30, 3))
sketch2.addConstraint(Sketcher.Constraint("Horizontal", 12, 2, 14, 2))
sketch2.addConstraint(Sketcher.Constraint("Horizontal", 11, 2, 15, 2))
sketch2.addConstraint(Sketcher.Constraint("Horizontal", 17, 2, 20, 2))
sketch2.addConstraint(Sketcher.Constraint("Horizontal", 16, 2, 21, 2))
sketch2.addConstraint(Sketcher.Constraint("Vertical", 8, 3, 25, 3))
sketch2.addConstraint(Sketcher.Constraint("Vertical", 19, 3, 30, 3))
sketch2.addConstraint(Sketcher.Constraint("Equal", 11, 14))
sketch2.addConstraint(Sketcher.Constraint("Equal", 16, 20))
sketch2.addConstraint(Sketcher.Constraint("Equal", 22, 10))
sketch2.addConstraint(Sketcher.Constraint("Diameter", 8, 3.0))
sketch2.addConstraint(Sketcher.Constraint("Diameter", 24, 8.0))
sketch2.addConstraint(Sketcher.Constraint("Radius", 1, 0.5))
sketch2.addConstraint(Sketcher.Constraint("DistanceX", 0, 1, 0, 2, 154.0))
sketch2.addConstraint(Sketcher.Constraint("DistanceX", 9, 1, 9, 2, 18.0))
sketch2.addConstraint(Sketcher.Constraint("DistanceY", 2, 1, 2, 2, 69.0))
sketch2.addConstraint(Sketcher.Constraint("DistanceY", 27, 2, 27, 1, 56.1))
sketch2.addConstraint(Sketcher.Constraint("DistanceX", -1, 1, 8, 3, 151.0))
sketch2.addConstraint(Sketcher.Constraint("DistanceY", 8, 3, -1, 1, 4.0))
sketch2.addConstraint(Sketcher.Constraint("DistanceX", -1, 1, 19, 3, 4.0))
sketch2.addConstraint(Sketcher.Constraint("DistanceY", 25, 3, -1, 1, 66.0))
sketch2.addConstraint(Sketcher.Constraint("DistanceY", 13, 3, 9, 2, 9.0))
sketch2.addConstraint(Sketcher.Constraint("DistanceX", 24, 3, 10, 2, 9.0))
sketch2.addConstraint(Sketcher.Constraint("DistanceX", 26, 1, 26, 2, 37.05))
sketch2.addConstraint(Sketcher.Constraint("DistanceX", 18, 3, 13, 3, 38.1))
sketch2.addConstraint(Sketcher.Constraint("DistanceY", 24, 3, 13, 3, 29.6))
sketch2.addConstraint(Sketcher.Constraint("DistanceX", 14, 2, 12, 2, 20.1))
sketch2.addConstraint(Sketcher.Constraint("DistanceX", 20, 2, 17, 2, 20.1))
sketch2.addConstraint(Sketcher.Constraint("DistanceY", 26, 2, -1, 1, 6.95))
sketch2.addConstraint(Sketcher.Constraint("DistanceX", 13, 3, 24, 3, 19.05))
sketch2.addConstraint(Sketcher.Constraint("DistanceY", 13, 3, -1, 1, 25.475))
sketch2.addConstraint(Sketcher.Constraint("DistanceX", 26, 2, 23, 2, 10.575))
sketch2.addConstraint(Sketcher.Constraint("DistanceX", -1, 1, 13, 3, 120.3625))
sketch2.setExpression("Constraints[66]", "Params.sketch2_diameter")
sketch2.setExpression("Constraints[67]", "Params.sketch2_diameter2")
sketch2.setExpression("Constraints[68]", "Params.sketch2_radius")
sketch2.setExpression("Constraints[69]", "Params.sketch2_width")
sketch2.setExpression("Constraints[70]", "Params.sketch2_width2")
pad2 = body.newObject("PartDesign::Pad", "Pad001")
pad2.Profile = sketch2
pad2.setExpression("Length", "Params.pad2_length")

sketch3 = body.newObject("Sketcher::SketchObject", "Sketch002")
sketch3.AttachmentSupport = (doc.getObject("XZ_Plane"), [""])
sketch3.MapMode = "FlatFace"
sketch3.AttachmentOffset = App.Placement(Vector(0, 0, 5), App.Rotation())
add_polygon(sketch3, [(146.5125, -63.825), (146.5125, -46.325), (132.3125, -46.325), (132.3125, -63.825)])
sketch3.addConstraint(Sketcher.Constraint("Vertical", 0))
sketch3.addConstraint(Sketcher.Constraint("Horizontal", 1))
sketch3.addConstraint(Sketcher.Constraint("Vertical", 2))
sketch3.addConstraint(Sketcher.Constraint("Horizontal", 3))
sketch3.addConstraint(Sketcher.Constraint("DistanceX", 1, 2, 1, 1, 14.2))
sketch3.addConstraint(Sketcher.Constraint("DistanceY", 0, 1, 0, 2, 17.5))
sketch3.addConstraint(Sketcher.Constraint("DistanceY", 0, 2, -1, 1, 46.325))
sketch3.addConstraint(Sketcher.Constraint("DistanceX", -1, 1, 0, 2, 146.5125))
sketch3.setExpression("Constraints[8]", "Params.sketch3_width")
sketch3.setExpression("Constraints[9]", "Params.sketch3_height")
pocket1 = body.newObject("PartDesign::Pocket", "Pocket")
pocket1.Profile = sketch3
pocket1.setExpression("Length", "Params.pocket1_length")

sketch4 = body.newObject("Sketcher::SketchObject", "Sketch003")
sketch4.AttachmentSupport = (doc.getObject("XZ_Plane"), [""])
sketch4.MapMode = "FlatFace"
add_polygon(sketch4, [(70.5625, -11.425), (70.5625, 0), (132.0625, 0), (132.0625, -11.425)])
sketch4.addConstraint(Sketcher.Constraint("Vertical", 0))
sketch4.addConstraint(Sketcher.Constraint("Horizontal", 1))
sketch4.addConstraint(Sketcher.Constraint("Vertical", 2))
sketch4.addConstraint(Sketcher.Constraint("Horizontal", 3))
sketch4.addConstraint(Sketcher.Constraint("PointOnObject", 0, 2, -1))
sketch4.addConstraint(Sketcher.Constraint("DistanceX", 1, 1, 1, 2, 61.5))
sketch4.addConstraint(Sketcher.Constraint("DistanceY", 0, 1, 0, 2, 11.425))
sketch4.addConstraint(Sketcher.Constraint("DistanceX", -1, 1, 0, 2, 70.5625))
sketch4.setExpression("Constraints[9]", "Params.sketch4_width")
pocket2 = body.newObject("PartDesign::Pocket", "Pocket001")
pocket2.Profile = sketch4
pocket2.Type = "ThroughAll"
pocket2.Reversed = True
doc.recompute()

fillet = body.newObject("PartDesign::Fillet", "Fillet")
fillet.Base = (pocket2, edges_at(pocket2, [
    (0, 0, -35),
    (0.146, 0, -69.854),
    (77.5, 0, -70),
    (154.854, 0, -69.854),
    (143.281, 0, 0),
    (132.062, -2.5, 0),
    (70.562, -2.5, 0),
    (155, 0, -35),
    (154.854, 0, -0.146),
    (35.531, 0, 0),
    (0.146, 0, -0.146),
]))
fillet.setExpression("Radius", "Params.fillet_radius")
doc.recompute()

fillet2 = body.newObject("PartDesign::Fillet", "Fillet001")
fillet2.Base = (fillet, edges_at(fillet, [(70.562, -2.5, -11.425), (132.062, -2.5, -11.425)]))
fillet2.setExpression("Radius", "Params.fillet2_radius")

doc.recompute()
